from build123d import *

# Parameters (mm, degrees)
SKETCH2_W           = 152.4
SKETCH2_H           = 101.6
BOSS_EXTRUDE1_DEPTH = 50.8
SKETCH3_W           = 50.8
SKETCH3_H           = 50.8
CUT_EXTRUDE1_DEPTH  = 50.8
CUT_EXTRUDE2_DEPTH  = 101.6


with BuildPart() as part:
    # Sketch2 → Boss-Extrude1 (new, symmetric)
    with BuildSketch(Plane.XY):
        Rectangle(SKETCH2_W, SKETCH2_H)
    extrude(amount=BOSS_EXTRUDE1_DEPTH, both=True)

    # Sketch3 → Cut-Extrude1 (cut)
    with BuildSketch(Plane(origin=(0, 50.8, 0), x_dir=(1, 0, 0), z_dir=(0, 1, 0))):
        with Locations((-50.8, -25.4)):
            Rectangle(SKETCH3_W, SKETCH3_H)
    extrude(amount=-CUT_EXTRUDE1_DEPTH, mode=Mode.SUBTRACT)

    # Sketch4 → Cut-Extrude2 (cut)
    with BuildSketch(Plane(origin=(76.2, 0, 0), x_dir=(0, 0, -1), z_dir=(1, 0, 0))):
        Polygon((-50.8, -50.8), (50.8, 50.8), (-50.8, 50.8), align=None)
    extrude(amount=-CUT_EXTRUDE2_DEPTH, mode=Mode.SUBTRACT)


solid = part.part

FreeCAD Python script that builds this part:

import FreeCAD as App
import Part
import Sketcher
Q = App.Units.Quantity


def add_polygon(sketch, points):
    """Adds a closed chain of lines whose ends are joined by coincident constraints."""
    first, n = sketch.GeometryCount, len(points)
    for a, b in zip(points, points[1:] + points[:1]):
        sketch.addGeometry(Part.LineSegment(App.Vector(*a, 0), App.Vector(*b, 0)), False)
    for i in range(n):
        sketch.addConstraint(Sketcher.Constraint("Coincident", first + i, 2, first + (i + 1) % n, 1))

doc = App.newDocument("Part")
body = doc.addObject("PartDesign::Body", "Body")

# Sketch on XY plane
sketch1 = body.newObject("Sketcher::SketchObject", "Sketch")
sketch1.AttachmentSupport = (doc.getObject("XY_Plane"), [""])
sketch1.MapMode = "FlatFace"
add_polygon(sketch1, [(-76, 51), (-76, -51), (76, -51), (76, 51)])  # lines 0-3
sketch1.addConstraint([
    Sketcher.Constraint("Vertical", 0),
    Sketcher.Constraint("Horizontal", 1),
    Sketcher.Constraint("Vertical", 2),
    Sketcher.Constraint("Horizontal", 3),
    Sketcher.Constraint("Symmetric", 0, 2, 2, 2, -1, 1),
    Sketcher.Constraint("DistanceX", 1, 1, 1, 2, Q("6 in")),
    Sketcher.Constraint("DistanceY", 0, 2, 0, 1, Q("4 in")),
])
pad1 = body.newObject("PartDesign::Pad", "Pad")
pad1.Profile = sketch1
pad1.Length = Q("4 in")
pad1.Midplane = True

# Sketch on XZ plane
sketch2 = body.newObject("Sketcher::SketchObject", "Sketch001")
sketch2.AttachmentSupport = (doc.getObject("XZ_Plane"), [""])
sketch2.MapMode = "FlatFace"
sketch2.AttachmentOffset = App.Placement(App.Vector(0, 0, -2 * 25.4), App.Rotation())
add_polygon(sketch2, [(-76, 0), (-76, 51), (-25, 51), (-25, 0)])  # lines 0-3
sketch2.addConstraint([
    Sketcher.Constraint("Vertical", 0),
    Sketcher.Constraint("Horizontal", 1),
    Sketcher.Constraint("Vertical", 2),
    Sketcher.Constraint("Horizontal", 3),
    Sketcher.Constraint("PointOnObject", 2, 2, -1),
    Sketcher.Constraint("Equal", 3, 0),
    Sketcher.Constraint("DistanceX", 1, 1, 1, 2, Q("2 in")),
    Sketcher.Constraint("DistanceX", 0, 2, -1, 1, Q("3 in")),
])
pocket1 = body.newObject("PartDesign::Pocket", "Pocket")
pocket1.Profile = sketch2
pocket1.Length = Q("2 in")
pocket1.Reversed = True

# Sketch on YZ plane
sketch3 = body.newObject("Sketcher::SketchObject", "Sketch002")
sketch3.AttachmentSupport = (doc.getObject("YZ_Plane"), [""])
sketch3.MapMode = "FlatFace"
sketch3.AttachmentOffset = App.Placement(App.Vector(0, 0, 3 * 25.4), App.Rotation())
add_polygon(sketch3, [(-51, 51), (51, -51), (51, 51)])  # lines 0-2
sketch3.addConstraint([
    Sketcher.Constraint("Vertical", 1),
    Sketcher.Constraint("Horizontal", 2),
    Sketcher.Constraint("Symmetric", 0, 2, 2, 2, -1, 1),
    Sketcher.Constraint("Equal", 2, 1),
    Sketcher.Constraint("DistanceX", 2, 2, 2, 1, Q("4 in")),
])
pocket2 = body.newObject("PartDesign::Pocket", "Pocket001")
pocket2.Profile = sketch3
pocket2.Length = Q("4 in")

doc.recompute()
